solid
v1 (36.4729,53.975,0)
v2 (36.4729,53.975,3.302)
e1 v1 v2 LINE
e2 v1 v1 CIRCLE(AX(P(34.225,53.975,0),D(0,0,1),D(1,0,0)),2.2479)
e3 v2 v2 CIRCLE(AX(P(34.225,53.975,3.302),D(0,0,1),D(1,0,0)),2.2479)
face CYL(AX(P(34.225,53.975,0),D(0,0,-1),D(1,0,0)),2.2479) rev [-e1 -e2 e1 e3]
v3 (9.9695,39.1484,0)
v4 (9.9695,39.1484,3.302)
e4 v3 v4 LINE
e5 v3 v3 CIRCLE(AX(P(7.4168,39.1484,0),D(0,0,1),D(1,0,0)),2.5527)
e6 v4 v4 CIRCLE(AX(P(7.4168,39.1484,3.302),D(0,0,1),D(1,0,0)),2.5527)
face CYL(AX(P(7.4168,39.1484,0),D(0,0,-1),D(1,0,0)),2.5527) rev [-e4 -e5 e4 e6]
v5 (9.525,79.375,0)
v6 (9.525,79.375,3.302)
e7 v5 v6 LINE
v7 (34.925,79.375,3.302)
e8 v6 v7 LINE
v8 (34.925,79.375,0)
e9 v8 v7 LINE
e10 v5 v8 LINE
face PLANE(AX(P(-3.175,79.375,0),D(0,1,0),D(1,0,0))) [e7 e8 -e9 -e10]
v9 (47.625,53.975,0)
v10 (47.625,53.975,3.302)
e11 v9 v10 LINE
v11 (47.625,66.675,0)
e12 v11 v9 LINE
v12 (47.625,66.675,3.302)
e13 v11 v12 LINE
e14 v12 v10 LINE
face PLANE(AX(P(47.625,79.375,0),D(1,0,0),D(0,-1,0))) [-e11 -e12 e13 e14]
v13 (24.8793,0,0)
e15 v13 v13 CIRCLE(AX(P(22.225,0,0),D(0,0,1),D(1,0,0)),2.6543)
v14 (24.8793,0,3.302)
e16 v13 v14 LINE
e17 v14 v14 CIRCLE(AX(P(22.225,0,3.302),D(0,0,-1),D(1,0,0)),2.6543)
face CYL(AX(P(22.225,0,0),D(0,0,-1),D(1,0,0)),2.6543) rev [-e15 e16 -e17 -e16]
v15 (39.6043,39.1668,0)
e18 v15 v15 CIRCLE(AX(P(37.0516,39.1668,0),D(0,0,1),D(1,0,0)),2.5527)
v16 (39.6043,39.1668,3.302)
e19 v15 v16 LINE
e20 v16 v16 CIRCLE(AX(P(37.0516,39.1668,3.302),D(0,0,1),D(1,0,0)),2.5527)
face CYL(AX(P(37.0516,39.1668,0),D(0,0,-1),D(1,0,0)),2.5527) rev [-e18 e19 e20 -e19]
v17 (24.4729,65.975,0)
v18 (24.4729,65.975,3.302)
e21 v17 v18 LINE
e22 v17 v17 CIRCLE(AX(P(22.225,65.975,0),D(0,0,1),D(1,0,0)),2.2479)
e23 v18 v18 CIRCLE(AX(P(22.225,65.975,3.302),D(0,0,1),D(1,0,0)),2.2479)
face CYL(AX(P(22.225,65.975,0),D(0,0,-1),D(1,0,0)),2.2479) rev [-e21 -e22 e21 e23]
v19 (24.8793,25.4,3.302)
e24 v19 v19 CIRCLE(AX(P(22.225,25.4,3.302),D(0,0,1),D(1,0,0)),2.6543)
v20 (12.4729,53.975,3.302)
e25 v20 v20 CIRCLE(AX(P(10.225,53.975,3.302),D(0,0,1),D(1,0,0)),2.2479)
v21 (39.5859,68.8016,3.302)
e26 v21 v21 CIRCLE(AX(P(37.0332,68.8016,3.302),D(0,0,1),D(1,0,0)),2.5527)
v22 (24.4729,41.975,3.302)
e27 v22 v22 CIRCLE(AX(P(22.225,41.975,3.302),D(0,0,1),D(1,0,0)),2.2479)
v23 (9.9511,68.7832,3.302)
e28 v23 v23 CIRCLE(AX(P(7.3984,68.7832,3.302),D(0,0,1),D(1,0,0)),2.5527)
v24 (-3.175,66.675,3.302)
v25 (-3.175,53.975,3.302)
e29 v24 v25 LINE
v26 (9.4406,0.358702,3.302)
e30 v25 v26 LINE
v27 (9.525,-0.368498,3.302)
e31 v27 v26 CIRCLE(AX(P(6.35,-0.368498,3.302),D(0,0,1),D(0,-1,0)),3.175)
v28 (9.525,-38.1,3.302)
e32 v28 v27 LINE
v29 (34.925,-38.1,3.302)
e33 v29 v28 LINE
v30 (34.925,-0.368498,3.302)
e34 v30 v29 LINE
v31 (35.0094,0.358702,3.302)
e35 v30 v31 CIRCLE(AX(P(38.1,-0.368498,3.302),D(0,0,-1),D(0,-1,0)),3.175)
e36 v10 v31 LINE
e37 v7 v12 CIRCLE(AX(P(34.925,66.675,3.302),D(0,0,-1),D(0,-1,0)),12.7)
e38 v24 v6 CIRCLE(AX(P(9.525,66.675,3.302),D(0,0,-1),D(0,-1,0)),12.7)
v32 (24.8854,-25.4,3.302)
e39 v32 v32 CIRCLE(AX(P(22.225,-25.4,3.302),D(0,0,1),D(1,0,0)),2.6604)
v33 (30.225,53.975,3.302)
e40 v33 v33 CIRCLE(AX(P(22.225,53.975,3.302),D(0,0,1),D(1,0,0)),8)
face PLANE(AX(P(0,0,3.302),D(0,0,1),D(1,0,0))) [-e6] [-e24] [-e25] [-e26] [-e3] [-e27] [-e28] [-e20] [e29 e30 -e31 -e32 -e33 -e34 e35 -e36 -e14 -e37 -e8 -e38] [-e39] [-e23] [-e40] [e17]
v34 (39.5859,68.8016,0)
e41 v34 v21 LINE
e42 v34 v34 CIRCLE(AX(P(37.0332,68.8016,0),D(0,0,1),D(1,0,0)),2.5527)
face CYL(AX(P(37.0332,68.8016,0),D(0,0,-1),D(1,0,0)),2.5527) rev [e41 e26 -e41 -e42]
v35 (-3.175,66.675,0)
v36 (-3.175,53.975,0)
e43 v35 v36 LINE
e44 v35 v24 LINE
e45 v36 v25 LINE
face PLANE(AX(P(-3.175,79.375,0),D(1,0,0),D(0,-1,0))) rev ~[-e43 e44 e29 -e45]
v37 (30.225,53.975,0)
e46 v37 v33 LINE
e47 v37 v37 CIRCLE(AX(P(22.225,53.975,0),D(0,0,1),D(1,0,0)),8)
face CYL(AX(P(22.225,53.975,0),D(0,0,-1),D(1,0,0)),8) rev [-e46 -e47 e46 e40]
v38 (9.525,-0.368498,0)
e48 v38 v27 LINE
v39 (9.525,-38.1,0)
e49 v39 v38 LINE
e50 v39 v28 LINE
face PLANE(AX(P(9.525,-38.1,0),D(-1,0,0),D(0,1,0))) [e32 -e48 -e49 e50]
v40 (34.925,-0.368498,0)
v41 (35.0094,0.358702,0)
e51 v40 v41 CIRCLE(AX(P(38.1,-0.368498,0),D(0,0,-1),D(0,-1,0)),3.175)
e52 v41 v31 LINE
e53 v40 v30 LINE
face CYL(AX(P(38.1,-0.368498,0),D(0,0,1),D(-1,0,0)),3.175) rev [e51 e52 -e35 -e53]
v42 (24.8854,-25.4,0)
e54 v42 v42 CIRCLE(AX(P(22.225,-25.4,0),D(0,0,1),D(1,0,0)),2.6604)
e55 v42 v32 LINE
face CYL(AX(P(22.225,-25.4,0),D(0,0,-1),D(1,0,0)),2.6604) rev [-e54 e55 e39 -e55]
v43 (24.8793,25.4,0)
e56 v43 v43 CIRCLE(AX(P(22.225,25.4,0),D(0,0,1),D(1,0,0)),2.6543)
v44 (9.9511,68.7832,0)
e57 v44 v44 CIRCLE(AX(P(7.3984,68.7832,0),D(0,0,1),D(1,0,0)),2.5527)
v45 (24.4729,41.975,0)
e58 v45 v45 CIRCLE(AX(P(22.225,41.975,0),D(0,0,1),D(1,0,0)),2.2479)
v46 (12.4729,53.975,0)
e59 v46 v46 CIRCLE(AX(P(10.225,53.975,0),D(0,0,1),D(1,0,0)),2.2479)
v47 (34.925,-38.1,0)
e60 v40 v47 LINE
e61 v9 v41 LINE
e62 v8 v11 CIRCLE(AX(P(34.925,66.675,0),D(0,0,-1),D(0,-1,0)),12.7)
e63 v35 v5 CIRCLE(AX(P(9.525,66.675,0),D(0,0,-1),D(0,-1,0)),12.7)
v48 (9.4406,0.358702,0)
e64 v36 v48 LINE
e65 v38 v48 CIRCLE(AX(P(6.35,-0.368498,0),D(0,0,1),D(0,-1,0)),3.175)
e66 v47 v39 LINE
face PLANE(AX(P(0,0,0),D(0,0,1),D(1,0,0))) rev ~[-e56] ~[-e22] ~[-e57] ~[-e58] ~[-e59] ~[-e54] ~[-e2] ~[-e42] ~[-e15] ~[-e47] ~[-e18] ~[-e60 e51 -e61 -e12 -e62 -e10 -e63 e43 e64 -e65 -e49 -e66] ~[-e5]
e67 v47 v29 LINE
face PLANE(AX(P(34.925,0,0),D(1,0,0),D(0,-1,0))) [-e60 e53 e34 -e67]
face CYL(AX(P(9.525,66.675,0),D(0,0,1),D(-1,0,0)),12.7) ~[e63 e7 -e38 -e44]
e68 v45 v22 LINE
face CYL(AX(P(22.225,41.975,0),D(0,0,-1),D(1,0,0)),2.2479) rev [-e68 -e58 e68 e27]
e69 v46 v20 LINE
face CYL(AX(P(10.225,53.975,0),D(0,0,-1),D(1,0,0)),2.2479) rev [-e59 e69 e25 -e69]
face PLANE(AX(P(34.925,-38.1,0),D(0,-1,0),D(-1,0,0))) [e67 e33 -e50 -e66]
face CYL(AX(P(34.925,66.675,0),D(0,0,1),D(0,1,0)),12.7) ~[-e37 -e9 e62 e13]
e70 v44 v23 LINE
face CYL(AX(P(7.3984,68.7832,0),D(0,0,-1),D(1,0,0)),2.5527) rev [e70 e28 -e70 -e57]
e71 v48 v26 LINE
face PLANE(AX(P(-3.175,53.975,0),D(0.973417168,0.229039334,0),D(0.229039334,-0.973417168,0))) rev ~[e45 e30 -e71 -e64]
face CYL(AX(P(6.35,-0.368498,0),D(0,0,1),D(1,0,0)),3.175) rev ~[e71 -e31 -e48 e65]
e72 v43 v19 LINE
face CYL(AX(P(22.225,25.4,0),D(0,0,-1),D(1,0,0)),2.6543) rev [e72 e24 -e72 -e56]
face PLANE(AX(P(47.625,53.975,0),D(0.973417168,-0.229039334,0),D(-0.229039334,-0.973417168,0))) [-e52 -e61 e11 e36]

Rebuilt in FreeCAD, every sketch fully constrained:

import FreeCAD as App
import Part
import Sketcher
Q = App.Units.Quantity


def edges_at(feature, points):
    """Names of the edges that pass closest to the given points."""
    edges = feature.Shape.Edges
    near = lambda p: min(range(len(edges)), key=lambda i: edges[i].distToShape(Part.Vertex(*p))[0])
    return sorted({f"Edge{near(p) + 1}" for p in points})


def add_polygon(sketch, points):
    """Adds a closed chain of lines whose ends are joined by coincident constraints."""
    first, n = sketch.GeometryCount, len(points)
    for a, b in zip(points, points[1:] + points[:1]):
        sketch.addGeometry(Part.LineSegment(App.Vector(*a, 0), App.Vector(*b, 0)), False)
    for i in range(n):
        sketch.addConstraint(Sketcher.Constraint("Coincident", first + i, 2, first + (i + 1) % n, 1))

doc = App.newDocument("Part")
body = doc.addObject("PartDesign::Body", "Body")

# Sketch on XY plane
sketch1 = body.newObject("Sketcher::SketchObject", "Sketch")
sketch1.AttachmentSupport = (doc.getObject("XY_Plane"), [""])
sketch1.MapMode = "FlatFace"
add_polygon(sketch1, [(34.9, -38.1), (34.9, 0), (47.6, 54), (47.6, 79.4), (-3.2, 79.4), (-3.2, 54), (9.5, 0), (9.5, -38.1)])  # lines 0-7
sketch1.addGeometry(Part.Circle(App.Vector(22.2, 0, 0), App.Vector(0, 0, 1), 2.7), False)  # 8
sketch1.addGeometry(Part.Circle(App.Vector(22.2, -25.4, 0), App.Vector(0, 0, 1), 2.7), False)  # 9
sketch1.addGeometry(Part.Circle(App.Vector(22.2, 66, 0), App.Vector(0, 0, 1), 2.2), False)  # 10
sketch1.addGeometry(Part.Circle(App.Vector(37, 68.8, 0), App.Vector(0, 0, 1), 2.6), False)  # 11
sketch1.addGeometry(Part.Circle(App.Vector(7.4, 39.1, 0), App.Vector(0, 0, 1), 2.6), False)  # 12
sketch1.addGeometry(Part.Circle(App.Vector(7.4, 68.8, 0), App.Vector(0, 0, 1), 2.6), False)  # 13
sketch1.addGeometry(Part.Circle(App.Vector(10.2, 54, 0), App.Vector(0, 0, 1), 2.2), False)  # 14
sketch1.addGeometry(Part.Circle(App.Vector(22.2, 25.4, 0), App.Vector(0, 0, 1), 2.7), False)  # 15
sketch1.addGeometry(Part.Circle(App.Vector(22.2, 42, 0), App.Vector(0, 0, 1), 2.2), False)  # 16
sketch1.addGeometry(Part.Circle(App.Vector(37.1, 39.2, 0), App.Vector(0, 0, 1), 2.6), False)  # 17
sketch1.addGeometry(Part.Circle(App.Vector(22.2, 54, 0), App.Vector(0, 0, 1), 8), False)  # 18
sketch1.addGeometry(Part.Circle(App.Vector(34.2, 54, 0), App.Vector(0, 0, 1), 2.2), False)  # 19
sketch1.addConstraint([
    Sketcher.Constraint("Vertical", 0),
    Sketcher.Constraint("Vertical", 2),
    Sketcher.Constraint("Horizontal", 3),
    Sketcher.Constraint("Vertical", 4),
    Sketcher.Constraint("Vertical", 6),
    Sketcher.Constraint("Horizontal", 7),
    Sketcher.Constraint("Equal", 11, 12),
    Sketcher.Constraint("Equal", 12, 13),
    Sketcher.Constraint("Equal", 10, 14),
    Sketcher.Constraint("Equal", 8, 15),
    Sketcher.Constraint("Equal", 14, 16),
    Sketcher.Constraint("Equal", 13, 17),
    Sketcher.Constraint("Equal", 16, 19),
    Sketcher.Constraint("Symmetric", 9, 3, 15, 3, -1),
    Sketcher.Constraint("PointOnObject", 8, 3, -1),
    Sketcher.Constraint("PointOnObject", 0, 2, -1),
    Sketcher.Constraint("PointOnObject", 5, 2, -1),
    Sketcher.Constraint("Horizontal", 14, 3, 18, 3),
    Sketcher.Constraint("Horizontal", 18, 3, 19, 3),
    Sketcher.Constraint("Horizontal", 19, 3, 1, 2),
    Sketcher.Constraint("Horizontal", 1, 2, 4, 2),
    Sketcher.Constraint("Vertical", 8, 3, 9, 3),
    Sketcher.Constraint("Vertical", 9, 3, 10, 3),
    Sketcher.Constraint("Vertical", 15, 3, 16, 3),
    Sketcher.Constraint("Vertical", 16, 3, 18, 3),
    Sketcher.Constraint("Equal", 7, 2),
    Sketcher.Constraint("Equal", 1, 5),
    Sketcher.Constraint("DistanceX", 3, 2, 3, 1, Q("2 in")),
    Sketcher.Constraint("DistanceX", 7, 1, 7, 2, Q("1 in")),
    Sketcher.Constraint("Diameter", 8, Q("0.209 in")),
    Sketcher.Constraint("Diameter", 10, Q("0.177 in")),
    Sketcher.Constraint("Diameter", 11, Q("0.201 in")),
    Sketcher.Constraint("DistanceY", 0, 1, 0, 2, Q("1.5 in")),
    Sketcher.Constraint("DistanceY", 9, 3, -1, 1, Q("1 in")),
    Sketcher.Constraint("DistanceX", 18, 3, 1, 2, Q("1 in")),
    Sketcher.Constraint("Diameter", 18, 16.0),
    Sketcher.Constraint("DistanceX", -1, 1, 8, 3, Q("0.875 in")),
    Sketcher.Constraint("DistanceY", -1, 1, 14, 3, Q("2.125 in")),
    Sketcher.Constraint("DistanceX", 10, 3, 11, 3, Q("0.583 in")),
    Sketcher.Constraint("DistanceX", 12, 3, 10, 3, Q("0.583 in")),
    Sketcher.Constraint("DistanceY", 14, 3, 13, 3, Q("0.583 in")),
    Sketcher.Constraint("DistanceY", 17, 3, 19, 3, Q("0.583 in")),
    Sketcher.Constraint("Diameter", 9, 5.3208),
    Sketcher.Constraint("DistanceX", 14, 3, 10, 3, 12.0),
    Sketcher.Constraint("DistanceY", 14, 3, 10, 3, 12.0),
    Sketcher.Constraint("DistanceY", 16, 3, 14, 3, 12.0),
    Sketcher.Constraint("DistanceX", 18, 3, 19, 3, 12.0),
    Sketcher.Constraint("DistanceY", -1, 1, 11, 3, 68.8016),
    Sketcher.Constraint("DistanceY", -1, 1, 12, 3, 39.1484),
    Sketcher.Constraint("DistanceX", -1, 1, 13, 3, 7.3984),
    Sketcher.Constraint("DistanceX", -1, 1, 17, 3, 37.0516),
])
pad1 = body.newObject("PartDesign::Pad", "Pad")
pad1.Profile = sketch1
pad1.Length = Q("0.13 in")
doc.recompute()

fillet = body.newObject("PartDesign::Fillet", "Fillet")
fillet.Base = (pad1, edges_at(pad1, [(34.925, 0, 1.651)]))
fillet.Radius = Q("0.125 in")
doc.recompute()

fillet2 = body.newObject("PartDesign::Fillet", "Fillet001")
fillet2.Base = (fillet, edges_at(fillet, [(9.525, 0, 1.651)]))
fillet2.Radius = Q("0.125 in")
doc.recompute()

fillet3 = body.newObject("PartDesign::Fillet", "Fillet002")
fillet3.Base = (fillet2, edges_at(fillet2, [(-3.175, 79.375, 1.651), (47.625, 79.375, 1.651)]))
fillet3.Radius = Q("0.5 in")

doc.recompute()
